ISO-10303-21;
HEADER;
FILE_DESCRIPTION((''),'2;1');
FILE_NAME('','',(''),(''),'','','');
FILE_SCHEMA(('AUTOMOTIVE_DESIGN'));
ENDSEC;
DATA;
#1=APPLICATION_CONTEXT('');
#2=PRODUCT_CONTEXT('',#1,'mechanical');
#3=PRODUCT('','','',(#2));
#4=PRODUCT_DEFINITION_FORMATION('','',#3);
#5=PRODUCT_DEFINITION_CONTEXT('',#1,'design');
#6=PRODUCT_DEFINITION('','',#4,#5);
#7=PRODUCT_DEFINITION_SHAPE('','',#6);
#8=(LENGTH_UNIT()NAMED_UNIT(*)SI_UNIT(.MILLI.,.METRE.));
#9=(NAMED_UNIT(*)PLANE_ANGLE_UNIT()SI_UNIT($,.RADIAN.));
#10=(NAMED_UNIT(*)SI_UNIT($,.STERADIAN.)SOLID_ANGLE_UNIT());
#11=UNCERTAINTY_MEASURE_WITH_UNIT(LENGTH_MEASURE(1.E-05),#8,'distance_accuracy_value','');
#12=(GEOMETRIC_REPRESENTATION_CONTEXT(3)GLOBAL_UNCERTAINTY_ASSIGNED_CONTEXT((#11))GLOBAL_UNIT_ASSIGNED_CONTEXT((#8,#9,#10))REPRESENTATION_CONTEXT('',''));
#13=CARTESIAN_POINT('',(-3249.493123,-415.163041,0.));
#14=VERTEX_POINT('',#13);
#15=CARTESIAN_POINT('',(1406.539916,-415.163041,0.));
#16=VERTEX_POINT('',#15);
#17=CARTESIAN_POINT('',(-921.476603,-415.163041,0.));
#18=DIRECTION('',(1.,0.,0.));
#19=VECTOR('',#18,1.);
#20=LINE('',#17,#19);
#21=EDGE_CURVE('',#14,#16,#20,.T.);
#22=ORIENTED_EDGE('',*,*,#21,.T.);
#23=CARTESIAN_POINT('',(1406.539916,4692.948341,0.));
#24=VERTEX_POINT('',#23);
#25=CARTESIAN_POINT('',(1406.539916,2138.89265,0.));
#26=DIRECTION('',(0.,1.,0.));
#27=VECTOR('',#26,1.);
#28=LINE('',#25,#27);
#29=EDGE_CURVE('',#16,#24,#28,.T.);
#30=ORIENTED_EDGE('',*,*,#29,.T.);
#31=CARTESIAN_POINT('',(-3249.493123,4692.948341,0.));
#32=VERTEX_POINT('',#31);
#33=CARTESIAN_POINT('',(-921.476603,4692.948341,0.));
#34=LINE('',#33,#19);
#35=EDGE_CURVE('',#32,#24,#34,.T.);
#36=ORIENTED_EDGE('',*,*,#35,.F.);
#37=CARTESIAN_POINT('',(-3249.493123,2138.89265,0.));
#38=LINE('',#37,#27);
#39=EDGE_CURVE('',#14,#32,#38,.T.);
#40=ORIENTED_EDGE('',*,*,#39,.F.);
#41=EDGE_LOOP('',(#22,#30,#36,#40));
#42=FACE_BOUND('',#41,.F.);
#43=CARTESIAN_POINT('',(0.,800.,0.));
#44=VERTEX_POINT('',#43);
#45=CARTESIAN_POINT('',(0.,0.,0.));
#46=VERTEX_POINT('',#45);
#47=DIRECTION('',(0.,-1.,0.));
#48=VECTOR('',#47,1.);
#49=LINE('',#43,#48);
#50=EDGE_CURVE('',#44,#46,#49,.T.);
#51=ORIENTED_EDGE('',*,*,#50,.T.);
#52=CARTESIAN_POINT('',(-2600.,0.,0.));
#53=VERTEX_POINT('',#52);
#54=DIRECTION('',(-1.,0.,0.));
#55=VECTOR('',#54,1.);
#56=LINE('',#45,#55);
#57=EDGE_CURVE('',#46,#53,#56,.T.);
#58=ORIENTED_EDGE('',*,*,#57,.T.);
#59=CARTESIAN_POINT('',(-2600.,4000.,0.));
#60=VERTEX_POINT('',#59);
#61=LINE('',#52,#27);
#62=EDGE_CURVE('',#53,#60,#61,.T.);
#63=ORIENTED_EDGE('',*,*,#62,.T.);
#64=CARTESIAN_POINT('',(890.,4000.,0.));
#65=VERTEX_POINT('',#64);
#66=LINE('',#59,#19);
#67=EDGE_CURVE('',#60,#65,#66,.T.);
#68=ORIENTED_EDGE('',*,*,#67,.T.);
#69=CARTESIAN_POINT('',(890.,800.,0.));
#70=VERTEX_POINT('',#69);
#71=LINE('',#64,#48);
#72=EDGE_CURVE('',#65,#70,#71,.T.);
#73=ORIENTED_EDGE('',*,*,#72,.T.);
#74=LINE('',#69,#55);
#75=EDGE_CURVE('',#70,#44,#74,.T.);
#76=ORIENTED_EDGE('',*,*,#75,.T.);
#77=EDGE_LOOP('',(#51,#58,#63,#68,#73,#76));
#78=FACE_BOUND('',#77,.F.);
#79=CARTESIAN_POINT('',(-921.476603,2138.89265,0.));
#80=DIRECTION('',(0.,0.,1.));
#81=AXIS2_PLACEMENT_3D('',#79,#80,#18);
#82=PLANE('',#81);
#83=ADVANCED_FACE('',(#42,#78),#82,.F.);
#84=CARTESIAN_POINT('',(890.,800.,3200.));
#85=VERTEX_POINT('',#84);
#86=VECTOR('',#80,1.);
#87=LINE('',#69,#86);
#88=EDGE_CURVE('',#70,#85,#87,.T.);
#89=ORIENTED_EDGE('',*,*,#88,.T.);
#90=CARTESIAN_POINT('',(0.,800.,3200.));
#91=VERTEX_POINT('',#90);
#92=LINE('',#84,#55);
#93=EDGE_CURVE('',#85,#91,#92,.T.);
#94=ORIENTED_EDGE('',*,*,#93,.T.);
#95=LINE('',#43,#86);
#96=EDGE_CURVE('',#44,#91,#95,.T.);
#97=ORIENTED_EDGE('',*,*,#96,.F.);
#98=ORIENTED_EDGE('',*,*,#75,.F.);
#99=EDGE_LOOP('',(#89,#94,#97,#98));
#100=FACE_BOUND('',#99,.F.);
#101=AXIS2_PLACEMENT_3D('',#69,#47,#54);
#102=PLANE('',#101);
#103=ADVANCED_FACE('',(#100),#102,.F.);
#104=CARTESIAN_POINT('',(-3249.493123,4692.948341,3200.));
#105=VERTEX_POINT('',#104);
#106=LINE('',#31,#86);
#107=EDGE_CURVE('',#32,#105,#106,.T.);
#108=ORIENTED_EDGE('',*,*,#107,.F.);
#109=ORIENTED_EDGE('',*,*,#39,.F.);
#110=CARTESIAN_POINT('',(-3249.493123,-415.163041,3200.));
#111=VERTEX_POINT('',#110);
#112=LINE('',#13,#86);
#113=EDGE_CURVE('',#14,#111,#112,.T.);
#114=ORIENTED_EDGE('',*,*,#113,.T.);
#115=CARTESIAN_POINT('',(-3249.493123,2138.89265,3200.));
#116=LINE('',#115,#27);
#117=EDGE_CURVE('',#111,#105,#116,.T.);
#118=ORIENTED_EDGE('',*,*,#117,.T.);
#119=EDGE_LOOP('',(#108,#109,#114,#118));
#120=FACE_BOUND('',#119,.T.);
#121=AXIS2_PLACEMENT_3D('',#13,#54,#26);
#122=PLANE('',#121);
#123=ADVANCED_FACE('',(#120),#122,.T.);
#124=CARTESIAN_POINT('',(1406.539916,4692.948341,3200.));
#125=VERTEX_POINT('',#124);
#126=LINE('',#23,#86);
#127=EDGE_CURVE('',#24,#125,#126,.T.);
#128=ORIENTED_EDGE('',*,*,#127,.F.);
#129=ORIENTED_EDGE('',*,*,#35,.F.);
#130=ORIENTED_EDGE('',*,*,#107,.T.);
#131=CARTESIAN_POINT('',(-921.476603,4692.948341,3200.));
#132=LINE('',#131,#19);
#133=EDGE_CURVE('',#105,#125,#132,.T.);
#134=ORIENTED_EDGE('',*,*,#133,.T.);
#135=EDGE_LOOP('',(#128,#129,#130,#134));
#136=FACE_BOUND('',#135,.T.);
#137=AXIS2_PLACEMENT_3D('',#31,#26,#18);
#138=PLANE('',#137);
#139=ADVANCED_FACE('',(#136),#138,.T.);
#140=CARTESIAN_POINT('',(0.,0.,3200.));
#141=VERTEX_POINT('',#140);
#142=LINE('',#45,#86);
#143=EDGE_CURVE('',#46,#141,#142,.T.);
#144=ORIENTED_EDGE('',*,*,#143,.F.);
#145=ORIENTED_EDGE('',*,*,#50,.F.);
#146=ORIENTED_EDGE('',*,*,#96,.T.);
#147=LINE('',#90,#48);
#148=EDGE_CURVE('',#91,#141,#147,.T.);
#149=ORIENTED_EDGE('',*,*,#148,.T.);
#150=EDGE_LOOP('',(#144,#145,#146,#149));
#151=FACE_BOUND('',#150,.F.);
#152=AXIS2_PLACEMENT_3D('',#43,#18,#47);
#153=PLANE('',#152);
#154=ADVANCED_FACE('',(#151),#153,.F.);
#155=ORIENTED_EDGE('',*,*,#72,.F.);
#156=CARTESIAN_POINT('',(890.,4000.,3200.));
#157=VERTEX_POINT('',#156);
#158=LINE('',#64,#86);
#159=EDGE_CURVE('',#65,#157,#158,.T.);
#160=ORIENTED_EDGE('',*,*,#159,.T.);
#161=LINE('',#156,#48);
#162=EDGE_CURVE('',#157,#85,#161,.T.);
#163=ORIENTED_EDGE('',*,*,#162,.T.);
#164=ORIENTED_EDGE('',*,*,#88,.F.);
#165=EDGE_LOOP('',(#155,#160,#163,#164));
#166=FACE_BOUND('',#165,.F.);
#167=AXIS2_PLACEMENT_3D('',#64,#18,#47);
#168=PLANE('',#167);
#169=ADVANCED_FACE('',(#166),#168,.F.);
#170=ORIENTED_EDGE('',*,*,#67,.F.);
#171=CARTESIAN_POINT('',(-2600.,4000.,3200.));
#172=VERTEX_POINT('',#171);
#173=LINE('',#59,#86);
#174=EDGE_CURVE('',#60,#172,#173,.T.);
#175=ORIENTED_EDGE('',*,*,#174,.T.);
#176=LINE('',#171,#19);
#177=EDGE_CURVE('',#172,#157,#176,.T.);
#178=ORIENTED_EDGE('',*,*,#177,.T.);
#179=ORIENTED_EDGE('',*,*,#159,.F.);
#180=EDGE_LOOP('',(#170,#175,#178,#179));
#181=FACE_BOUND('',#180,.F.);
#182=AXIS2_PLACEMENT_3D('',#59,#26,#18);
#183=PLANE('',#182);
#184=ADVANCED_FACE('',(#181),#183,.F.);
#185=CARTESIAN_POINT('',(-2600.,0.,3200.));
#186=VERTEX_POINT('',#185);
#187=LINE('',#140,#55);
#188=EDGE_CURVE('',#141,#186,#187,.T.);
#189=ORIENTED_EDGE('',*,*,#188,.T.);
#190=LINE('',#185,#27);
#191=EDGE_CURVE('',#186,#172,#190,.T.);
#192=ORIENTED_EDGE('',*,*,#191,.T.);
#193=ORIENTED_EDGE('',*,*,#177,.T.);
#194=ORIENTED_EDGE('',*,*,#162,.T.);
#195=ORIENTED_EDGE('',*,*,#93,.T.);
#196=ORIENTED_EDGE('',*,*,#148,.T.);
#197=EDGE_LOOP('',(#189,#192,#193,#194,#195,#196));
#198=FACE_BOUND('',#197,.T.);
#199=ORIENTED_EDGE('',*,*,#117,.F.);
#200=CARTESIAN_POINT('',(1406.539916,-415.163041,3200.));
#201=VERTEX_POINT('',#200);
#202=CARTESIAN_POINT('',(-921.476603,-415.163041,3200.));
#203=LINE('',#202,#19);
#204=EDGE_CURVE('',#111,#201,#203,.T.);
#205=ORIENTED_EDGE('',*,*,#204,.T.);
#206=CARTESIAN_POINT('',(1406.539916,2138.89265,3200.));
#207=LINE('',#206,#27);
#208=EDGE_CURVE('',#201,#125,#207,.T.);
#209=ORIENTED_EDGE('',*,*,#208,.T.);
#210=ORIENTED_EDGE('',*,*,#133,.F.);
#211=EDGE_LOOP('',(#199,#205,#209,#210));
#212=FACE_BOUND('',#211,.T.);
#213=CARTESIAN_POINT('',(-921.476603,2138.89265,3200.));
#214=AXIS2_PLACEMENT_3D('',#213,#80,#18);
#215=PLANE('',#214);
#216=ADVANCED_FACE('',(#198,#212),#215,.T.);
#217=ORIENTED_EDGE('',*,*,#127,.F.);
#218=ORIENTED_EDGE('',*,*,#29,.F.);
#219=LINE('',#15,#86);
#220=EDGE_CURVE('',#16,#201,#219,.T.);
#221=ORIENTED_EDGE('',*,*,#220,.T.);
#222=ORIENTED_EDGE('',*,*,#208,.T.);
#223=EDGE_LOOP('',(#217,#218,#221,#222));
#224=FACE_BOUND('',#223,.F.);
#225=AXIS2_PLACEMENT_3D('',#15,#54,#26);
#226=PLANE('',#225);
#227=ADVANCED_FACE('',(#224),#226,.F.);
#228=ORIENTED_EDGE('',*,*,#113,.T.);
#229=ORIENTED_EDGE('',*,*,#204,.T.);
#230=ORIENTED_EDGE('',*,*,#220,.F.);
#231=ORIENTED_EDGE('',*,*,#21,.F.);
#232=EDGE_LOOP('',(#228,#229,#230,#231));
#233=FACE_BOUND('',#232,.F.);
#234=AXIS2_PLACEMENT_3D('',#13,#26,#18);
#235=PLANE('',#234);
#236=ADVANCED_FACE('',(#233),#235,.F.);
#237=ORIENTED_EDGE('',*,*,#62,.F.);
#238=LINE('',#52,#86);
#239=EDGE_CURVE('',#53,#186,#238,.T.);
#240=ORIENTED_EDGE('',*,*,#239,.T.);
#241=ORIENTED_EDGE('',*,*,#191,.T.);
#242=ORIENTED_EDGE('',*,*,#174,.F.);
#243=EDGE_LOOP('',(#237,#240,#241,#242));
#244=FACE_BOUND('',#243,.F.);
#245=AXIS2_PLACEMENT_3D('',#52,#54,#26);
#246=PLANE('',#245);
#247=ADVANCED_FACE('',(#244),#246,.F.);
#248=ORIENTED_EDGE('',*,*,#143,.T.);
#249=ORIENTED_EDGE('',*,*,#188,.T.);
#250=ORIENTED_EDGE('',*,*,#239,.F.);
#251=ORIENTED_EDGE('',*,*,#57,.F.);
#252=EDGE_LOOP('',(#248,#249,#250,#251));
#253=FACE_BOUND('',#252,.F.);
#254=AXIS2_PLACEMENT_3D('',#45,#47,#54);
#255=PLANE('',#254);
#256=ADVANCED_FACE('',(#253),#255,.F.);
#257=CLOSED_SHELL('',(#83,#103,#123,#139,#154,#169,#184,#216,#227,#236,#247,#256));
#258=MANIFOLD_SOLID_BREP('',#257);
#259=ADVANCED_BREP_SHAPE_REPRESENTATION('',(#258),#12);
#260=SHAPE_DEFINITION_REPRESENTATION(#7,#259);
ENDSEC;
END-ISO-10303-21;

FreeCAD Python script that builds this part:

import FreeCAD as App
import Part
import Sketcher
from FreeCAD import Vector
Q = App.Units.Quantity


def add_polygon(sketch, points):
    """Adds a closed chain of lines whose ends are joined by coincident constraints."""
    first, n = sketch.GeometryCount, len(points)
    for a, b in zip(points, points[1:] + points[:1]):
        sketch.addGeometry(Part.LineSegment(App.Vector(*a, 0), App.Vector(*b, 0)), False)
    for i in range(n):
        sketch.addConstraint(Sketcher.Constraint("Coincident", first + i, 2, first + (i + 1) % n, 1))

doc = App.newDocument("Part")
body = doc.addObject("PartDesign::Body", "Body")

# Sketch on XY plane
sketch1 = body.newObject("Sketcher::SketchObject", "Sketch")
sketch1.AttachmentSupport = (doc.getObject("XY_Plane"), [""])
sketch1.MapMode = "FlatFace"
add_polygon(sketch1, [(-3249, 4693), (-3249, -415), (1407, -415), (1407, 4693)])  # lines 0-3
add_polygon(sketch1, [(890, 800), (0, 800), (0, 0), (-2600, 0), (-2600, 4000), (890, 4000)])  # lines 4-9
sketch1.addConstraint([
    Sketcher.Constraint("Vertical", 0),
    Sketcher.Constraint("Horizontal", 1),
    Sketcher.Constraint("Vertical", 2),
    Sketcher.Constraint("Horizontal", 3),
    Sketcher.Constraint("Horizontal", 4),
    Sketcher.Constraint("Vertical", 5),
    Sketcher.Constraint("Horizontal", 6),
    Sketcher.Constraint("Vertical", 7),
    Sketcher.Constraint("Horizontal", 8),
    Sketcher.Constraint("Vertical", 9),
    Sketcher.Constraint("Coincident", 5, 2, -1, 1),
    Sketcher.Constraint("DistanceX", 4, 2, 4, 1, Q("890 mm")),
    Sketcher.Constraint("DistanceX", 6, 2, 6, 1, Q("2600 mm")),
    Sketcher.Constraint("DistanceY", 5, 2, 5, 1, Q("800 mm")),
    Sketcher.Constraint("DistanceY", 7, 1, 7, 2, Q("4000 mm")),
    Sketcher.Constraint("DistanceX", 1, 1, 1, 2, Q("4656.033039 mm")),
    Sketcher.Constraint("DistanceY", 0, 2, 0, 1, Q("5108.111381 mm")),
    Sketcher.Constraint("DistanceY", 0, 2, -1, 1, Q("415.163041 mm")),
    Sketcher.Constraint("DistanceX", 0, 2, -1, 1, Q("3249.493123 mm")),
])
pad1 = body.newObject("PartDesign::Pad", "Pad")
pad1.Profile = sketch1
pad1.Length = 3200

doc.recompute()
